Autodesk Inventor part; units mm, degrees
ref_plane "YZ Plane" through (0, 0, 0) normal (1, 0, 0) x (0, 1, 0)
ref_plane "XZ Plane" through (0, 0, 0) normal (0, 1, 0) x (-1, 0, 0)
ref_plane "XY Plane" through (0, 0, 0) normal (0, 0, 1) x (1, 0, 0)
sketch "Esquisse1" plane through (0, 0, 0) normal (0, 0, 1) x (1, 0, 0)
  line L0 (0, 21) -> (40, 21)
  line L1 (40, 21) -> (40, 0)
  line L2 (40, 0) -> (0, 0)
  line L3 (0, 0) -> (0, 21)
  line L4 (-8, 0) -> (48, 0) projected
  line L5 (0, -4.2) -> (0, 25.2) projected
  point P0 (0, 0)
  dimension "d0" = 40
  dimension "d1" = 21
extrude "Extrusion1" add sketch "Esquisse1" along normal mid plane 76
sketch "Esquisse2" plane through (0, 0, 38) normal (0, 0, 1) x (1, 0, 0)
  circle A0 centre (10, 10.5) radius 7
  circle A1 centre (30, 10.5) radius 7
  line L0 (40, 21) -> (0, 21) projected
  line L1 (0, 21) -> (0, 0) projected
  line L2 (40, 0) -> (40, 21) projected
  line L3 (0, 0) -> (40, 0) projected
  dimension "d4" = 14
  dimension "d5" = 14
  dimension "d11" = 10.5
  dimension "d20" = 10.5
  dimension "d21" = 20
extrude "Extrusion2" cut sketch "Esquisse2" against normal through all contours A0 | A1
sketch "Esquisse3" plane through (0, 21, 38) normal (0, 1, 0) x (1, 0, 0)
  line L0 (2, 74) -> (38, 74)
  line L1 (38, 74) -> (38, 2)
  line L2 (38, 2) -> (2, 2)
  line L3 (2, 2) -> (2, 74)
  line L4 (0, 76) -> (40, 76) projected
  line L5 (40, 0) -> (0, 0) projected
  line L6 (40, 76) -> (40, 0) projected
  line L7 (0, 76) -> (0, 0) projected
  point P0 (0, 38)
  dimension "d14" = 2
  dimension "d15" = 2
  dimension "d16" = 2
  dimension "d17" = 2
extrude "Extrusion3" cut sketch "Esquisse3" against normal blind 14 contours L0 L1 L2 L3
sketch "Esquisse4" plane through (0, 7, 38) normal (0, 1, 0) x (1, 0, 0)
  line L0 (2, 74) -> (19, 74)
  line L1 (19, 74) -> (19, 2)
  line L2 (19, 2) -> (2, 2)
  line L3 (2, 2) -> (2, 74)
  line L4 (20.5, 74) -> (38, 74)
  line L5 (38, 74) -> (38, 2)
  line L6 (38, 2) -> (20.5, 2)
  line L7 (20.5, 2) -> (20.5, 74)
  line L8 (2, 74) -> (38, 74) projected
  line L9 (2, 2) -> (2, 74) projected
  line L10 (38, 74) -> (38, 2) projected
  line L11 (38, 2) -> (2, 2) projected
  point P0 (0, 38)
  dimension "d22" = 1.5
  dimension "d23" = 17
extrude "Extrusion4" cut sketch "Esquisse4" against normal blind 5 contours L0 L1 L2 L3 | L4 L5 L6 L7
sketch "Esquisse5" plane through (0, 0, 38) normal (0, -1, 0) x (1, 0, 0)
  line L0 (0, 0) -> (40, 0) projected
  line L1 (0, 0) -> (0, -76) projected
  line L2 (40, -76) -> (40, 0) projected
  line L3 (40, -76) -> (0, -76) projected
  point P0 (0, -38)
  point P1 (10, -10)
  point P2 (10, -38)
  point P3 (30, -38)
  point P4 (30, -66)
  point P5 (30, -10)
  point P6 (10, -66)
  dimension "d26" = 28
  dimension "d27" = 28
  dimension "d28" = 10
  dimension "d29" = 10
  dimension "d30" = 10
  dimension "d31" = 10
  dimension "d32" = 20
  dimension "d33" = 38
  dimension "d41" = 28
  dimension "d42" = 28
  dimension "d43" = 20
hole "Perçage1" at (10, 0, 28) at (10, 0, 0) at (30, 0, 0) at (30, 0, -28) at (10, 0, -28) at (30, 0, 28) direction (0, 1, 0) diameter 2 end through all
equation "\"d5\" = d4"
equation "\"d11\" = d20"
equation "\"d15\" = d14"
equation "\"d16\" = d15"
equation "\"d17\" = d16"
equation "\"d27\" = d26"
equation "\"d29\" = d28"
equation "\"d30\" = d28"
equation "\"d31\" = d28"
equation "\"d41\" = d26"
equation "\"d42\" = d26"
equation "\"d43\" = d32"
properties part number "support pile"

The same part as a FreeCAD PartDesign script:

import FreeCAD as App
import Part
import Sketcher
Q = App.Units.Quantity

doc = App.newDocument("Part")
body = doc.addObject("PartDesign::Body", "Body")

# Sketch on XY plane
sketch1 = body.newObject("Sketcher::SketchObject", "Sketch")
sketch1.AttachmentSupport = (doc.getObject("XY_Plane"), [""])
sketch1.MapMode = "FlatFace"
sketch1.addGeometry([
    Part.LineSegment(App.Vector(40, 21, 0), App.Vector(0, 21, 0)),
    Part.LineSegment(App.Vector(0, 21, 0), App.Vector(0, 0, 0)),
    Part.LineSegment(App.Vector(0, 0, 0), App.Vector(40, 0, 0)),
    Part.LineSegment(App.Vector(40, 0, 0), App.Vector(40, 21, 0)),
], False)
sketch1.addConstraint([
    Sketcher.Constraint("Coincident", 0, 2, 1, 1),
    Sketcher.Constraint("Coincident", 1, 2, 2, 1),
    Sketcher.Constraint("Coincident", 2, 2, 3, 1),
    Sketcher.Constraint("Coincident", 3, 2, 0, 1),
    Sketcher.Constraint("Horizontal", 0),
    Sketcher.Constraint("Vertical", 1),
    Sketcher.Constraint("Horizontal", 2),
    Sketcher.Constraint("Vertical", 3),
    Sketcher.Constraint("Coincident", 1, 2, -1, 1),
    Sketcher.Constraint("DistanceX", 0, 2, 0, 1, Q("40 mm")),
    Sketcher.Constraint("DistanceY", 1, 2, 1, 1, Q("21 mm")),
])
pad1 = body.newObject("PartDesign::Pad", "Pad")
pad1.Profile = sketch1
pad1.Length = 76
pad1.Midplane = True

# Sketch on XY plane
sketch2 = body.newObject("Sketcher::SketchObject", "Sketch001")
sketch2.AttachmentSupport = (doc.getObject("XY_Plane"), [""])
sketch2.MapMode = "FlatFace"
sketch2.AttachmentOffset = App.Placement(App.Vector(0, 0, 38), App.Rotation())
sketch2.addGeometry([
    Part.Circle(App.Vector(10, 10, 0), App.Vector(0, 0, 1), 7),
    Part.Circle(App.Vector(30, 10, 0), App.Vector(0, 0, 1), 7),
], False)
sketch2.addConstraint([
    Sketcher.Constraint("Equal", 0, 1),
    Sketcher.Constraint("Horizontal", 0, 3, 1, 3),
    Sketcher.Constraint("Diameter", 0, Q("14 mm")),
    Sketcher.Constraint("DistanceX", 0, 3, 1, 3, Q("20 mm")),
    Sketcher.Constraint("DistanceY", -1, 1, 0, 3, Q("10.5 mm")),
    Sketcher.Constraint("DistanceX", -1, 1, 0, 3, Q("10 mm")),
])
pocket1 = body.newObject("PartDesign::Pocket", "Pocket")
pocket1.Profile = sketch2
pocket1.Type = "ThroughAll"

# Sketch on XZ plane
sketch3 = body.newObject("Sketcher::SketchObject", "Sketch002")
sketch3.AttachmentSupport = (doc.getObject("XZ_Plane"), [""])
sketch3.MapMode = "FlatFace"
sketch3.AttachmentOffset = App.Placement(App.Vector(0, 0, -21), App.Rotation())
sketch3.addGeometry([
    Part.LineSegment(App.Vector(38, -36, 0), App.Vector(2, -36, 0)),
    Part.LineSegment(App.Vector(2, -36, 0), App.Vector(2, 36, 0)),
    Part.LineSegment(App.Vector(2, 36, 0), App.Vector(38, 36, 0)),
    Part.LineSegment(App.Vector(38, 36, 0), App.Vector(38, -36, 0)),
], False)
sketch3.addConstraint([
    Sketcher.Constraint("Coincident", 0, 2, 1, 1),
    Sketcher.Constraint("Coincident", 1, 2, 2, 1),
    Sketcher.Constraint("Coincident", 2, 2, 3, 1),
    Sketcher.Constraint("Coincident", 3, 2, 0, 1),
    Sketcher.Constraint("Horizontal", 0),
    Sketcher.Constraint("Vertical", 1),
    Sketcher.Constraint("Horizontal", 2),
    Sketcher.Constraint("Vertical", 3),
    Sketcher.Constraint("DistanceX", -1, 1, 0, 2, Q("2 mm")),
    Sketcher.Constraint("DistanceX", 0, 2, 0, 1, Q("36 mm")),
    Sketcher.Constraint("DistanceY", 1, 1, 1, 2, Q("72 mm")),
    Sketcher.Constraint("DistanceY", 0, 2, -1, 1, Q("36 mm")),
])
pocket2 = body.newObject("PartDesign::Pocket", "Pocket001")
pocket2.Profile = sketch3
pocket2.Length = 14
pocket2.Reversed = True

# Sketch on XZ plane
sketch4 = body.newObject("Sketcher::SketchObject", "Sketch003")
sketch4.AttachmentSupport = (doc.getObject("XZ_Plane"), [""])
sketch4.MapMode = "FlatFace"
sketch4.AttachmentOffset = App.Placement(App.Vector(0, 0, -7), App.Rotation())
sketch4.addGeometry([
    Part.LineSegment(App.Vector(19, -36, 0), App.Vector(2, -36, 0)),  # 0
    Part.LineSegment(App.Vector(2, -36, 0), App.Vector(2, 36, 0)),  # 1
    Part.LineSegment(App.Vector(2, 36, 0), App.Vector(19, 36, 0)),  # 2
    Part.LineSegment(App.Vector(19, 36, 0), App.Vector(19, -36, 0)),  # 3
    Part.LineSegment(App.Vector(38, -36, 0), App.Vector(20, -36, 0)),  # 4
    Part.LineSegment(App.Vector(20, -36, 0), App.Vector(20, 36, 0)),  # 5
    Part.LineSegment(App.Vector(20, 36, 0), App.Vector(38, 36, 0)),  # 6
    Part.LineSegment(App.Vector(38, 36, 0), App.Vector(38, -36, 0)),  # 7
], False)
sketch4.addConstraint([
    Sketcher.Constraint("Coincident", 0, 2, 1, 1),
    Sketcher.Constraint("Coincident", 1, 2, 2, 1),
    Sketcher.Constraint("Coincident", 2, 2, 3, 1),
    Sketcher.Constraint("Coincident", 3, 2, 0, 1),
    Sketcher.Constraint("Coincident", 4, 2, 5, 1),
    Sketcher.Constraint("Coincident", 5, 2, 6, 1),
    Sketcher.Constraint("Coincident", 6, 2, 7, 1),
    Sketcher.Constraint("Coincident", 7, 2, 4, 1),
    Sketcher.Constraint("Horizontal", 0),
    Sketcher.Constraint("Vertical", 1),
    Sketcher.Constraint("Horizontal", 2),
    Sketcher.Constraint("Vertical", 3),
    Sketcher.Constraint("Horizontal", 4),
    Sketcher.Constraint("Vertical", 5),
    Sketcher.Constraint("Horizontal", 6),
    Sketcher.Constraint("Vertical", 7),
    Sketcher.Constraint("Horizontal", 3, 2, 4, 2),
    Sketcher.Constraint("Horizontal", 2, 2, 5, 2),
    Sketcher.Constraint("DistanceX", 0, 2, 0, 1, Q("17 mm")),
    Sketcher.Constraint("DistanceX", 3, 2, 4, 2, Q("1.5 mm")),
    Sketcher.Constraint("DistanceY", 1, 1, 1, 2, Q("72 mm")),
    Sketcher.Constraint("DistanceX", 4, 2, 4, 1, Q("17.5 mm")),
    Sketcher.Constraint("DistanceX", -1, 1, 0, 2, Q("2 mm")),
    Sketcher.Constraint("DistanceY", 0, 2, -1, 1, Q("36 mm")),
])
pocket3 = body.newObject("PartDesign::Pocket", "Pocket002")
pocket3.Profile = sketch4
pocket3.Length = 5
pocket3.Reversed = True

# Sketch on XZ plane
sketch5 = body.newObject("Sketcher::SketchObject", "Sketch004")
sketch5.AttachmentSupport = (doc.getObject("XZ_Plane"), [""])
sketch5.MapMode = "FlatFace"
sketch5.addGeometry([
    Part.Circle(App.Vector(10, 28, 0), App.Vector(0, 0, 1), 1),  # 0
    Part.Circle(App.Vector(10, 0, 0), App.Vector(0, 0, 1), 1),  # 1
    Part.Circle(App.Vector(30, 0, 0), App.Vector(0, 0, 1), 1),  # 2
    Part.Circle(App.Vector(30, -28, 0), App.Vector(0, 0, 1), 1),  # 3
    Part.Circle(App.Vector(10, -28, 0), App.Vector(0, 0, 1), 1),  # 4
    Part.Circle(App.Vector(30, 28, 0), App.Vector(0, 0, 1), 1),  # 5
], False)
sketch5.addConstraint([
    Sketcher.Constraint("Equal", 0, 1),
    Sketcher.Constraint("Equal", 1, 2),
    Sketcher.Constraint("Equal", 2, 3),
    Sketcher.Constraint("Equal", 3, 4),
    Sketcher.Constraint("Equal", 4, 5),
    Sketcher.Constraint("Symmetric", 0, 3, 4, 3, -1),
    Sketcher.Constraint("Symmetric", 3, 3, 5, 3, -1),
    Sketcher.Constraint("PointOnObject", 1, 3, -1),
    Sketcher.Constraint("PointOnObject", 2, 3, -1),
    Sketcher.Constraint("Horizontal", 3, 3, 4, 3),
    Sketcher.Constraint("Vertical", 0, 3, 1, 3),
    Sketcher.Constraint("Vertical", 2, 3, 3, 3),
    Sketcher.Constraint("Diameter", 0, Q("2 mm")),
    Sketcher.Constraint("DistanceX", -1, 1, 0, 3, Q("10 mm")),
    Sketcher.Constraint("DistanceY", -1, 1, 0, 3, Q("28 mm")),
    Sketcher.Constraint("DistanceX", -1, 1, 2, 3, Q("30 mm")),
])
doc.recompute()
hole = body.newObject("PartDesign::Hole", "Hole")
hole.Profile = sketch5
hole.ThreadType = "None"
hole.Diameter = 2
hole.DepthType = "ThroughAll"

doc.recompute()
